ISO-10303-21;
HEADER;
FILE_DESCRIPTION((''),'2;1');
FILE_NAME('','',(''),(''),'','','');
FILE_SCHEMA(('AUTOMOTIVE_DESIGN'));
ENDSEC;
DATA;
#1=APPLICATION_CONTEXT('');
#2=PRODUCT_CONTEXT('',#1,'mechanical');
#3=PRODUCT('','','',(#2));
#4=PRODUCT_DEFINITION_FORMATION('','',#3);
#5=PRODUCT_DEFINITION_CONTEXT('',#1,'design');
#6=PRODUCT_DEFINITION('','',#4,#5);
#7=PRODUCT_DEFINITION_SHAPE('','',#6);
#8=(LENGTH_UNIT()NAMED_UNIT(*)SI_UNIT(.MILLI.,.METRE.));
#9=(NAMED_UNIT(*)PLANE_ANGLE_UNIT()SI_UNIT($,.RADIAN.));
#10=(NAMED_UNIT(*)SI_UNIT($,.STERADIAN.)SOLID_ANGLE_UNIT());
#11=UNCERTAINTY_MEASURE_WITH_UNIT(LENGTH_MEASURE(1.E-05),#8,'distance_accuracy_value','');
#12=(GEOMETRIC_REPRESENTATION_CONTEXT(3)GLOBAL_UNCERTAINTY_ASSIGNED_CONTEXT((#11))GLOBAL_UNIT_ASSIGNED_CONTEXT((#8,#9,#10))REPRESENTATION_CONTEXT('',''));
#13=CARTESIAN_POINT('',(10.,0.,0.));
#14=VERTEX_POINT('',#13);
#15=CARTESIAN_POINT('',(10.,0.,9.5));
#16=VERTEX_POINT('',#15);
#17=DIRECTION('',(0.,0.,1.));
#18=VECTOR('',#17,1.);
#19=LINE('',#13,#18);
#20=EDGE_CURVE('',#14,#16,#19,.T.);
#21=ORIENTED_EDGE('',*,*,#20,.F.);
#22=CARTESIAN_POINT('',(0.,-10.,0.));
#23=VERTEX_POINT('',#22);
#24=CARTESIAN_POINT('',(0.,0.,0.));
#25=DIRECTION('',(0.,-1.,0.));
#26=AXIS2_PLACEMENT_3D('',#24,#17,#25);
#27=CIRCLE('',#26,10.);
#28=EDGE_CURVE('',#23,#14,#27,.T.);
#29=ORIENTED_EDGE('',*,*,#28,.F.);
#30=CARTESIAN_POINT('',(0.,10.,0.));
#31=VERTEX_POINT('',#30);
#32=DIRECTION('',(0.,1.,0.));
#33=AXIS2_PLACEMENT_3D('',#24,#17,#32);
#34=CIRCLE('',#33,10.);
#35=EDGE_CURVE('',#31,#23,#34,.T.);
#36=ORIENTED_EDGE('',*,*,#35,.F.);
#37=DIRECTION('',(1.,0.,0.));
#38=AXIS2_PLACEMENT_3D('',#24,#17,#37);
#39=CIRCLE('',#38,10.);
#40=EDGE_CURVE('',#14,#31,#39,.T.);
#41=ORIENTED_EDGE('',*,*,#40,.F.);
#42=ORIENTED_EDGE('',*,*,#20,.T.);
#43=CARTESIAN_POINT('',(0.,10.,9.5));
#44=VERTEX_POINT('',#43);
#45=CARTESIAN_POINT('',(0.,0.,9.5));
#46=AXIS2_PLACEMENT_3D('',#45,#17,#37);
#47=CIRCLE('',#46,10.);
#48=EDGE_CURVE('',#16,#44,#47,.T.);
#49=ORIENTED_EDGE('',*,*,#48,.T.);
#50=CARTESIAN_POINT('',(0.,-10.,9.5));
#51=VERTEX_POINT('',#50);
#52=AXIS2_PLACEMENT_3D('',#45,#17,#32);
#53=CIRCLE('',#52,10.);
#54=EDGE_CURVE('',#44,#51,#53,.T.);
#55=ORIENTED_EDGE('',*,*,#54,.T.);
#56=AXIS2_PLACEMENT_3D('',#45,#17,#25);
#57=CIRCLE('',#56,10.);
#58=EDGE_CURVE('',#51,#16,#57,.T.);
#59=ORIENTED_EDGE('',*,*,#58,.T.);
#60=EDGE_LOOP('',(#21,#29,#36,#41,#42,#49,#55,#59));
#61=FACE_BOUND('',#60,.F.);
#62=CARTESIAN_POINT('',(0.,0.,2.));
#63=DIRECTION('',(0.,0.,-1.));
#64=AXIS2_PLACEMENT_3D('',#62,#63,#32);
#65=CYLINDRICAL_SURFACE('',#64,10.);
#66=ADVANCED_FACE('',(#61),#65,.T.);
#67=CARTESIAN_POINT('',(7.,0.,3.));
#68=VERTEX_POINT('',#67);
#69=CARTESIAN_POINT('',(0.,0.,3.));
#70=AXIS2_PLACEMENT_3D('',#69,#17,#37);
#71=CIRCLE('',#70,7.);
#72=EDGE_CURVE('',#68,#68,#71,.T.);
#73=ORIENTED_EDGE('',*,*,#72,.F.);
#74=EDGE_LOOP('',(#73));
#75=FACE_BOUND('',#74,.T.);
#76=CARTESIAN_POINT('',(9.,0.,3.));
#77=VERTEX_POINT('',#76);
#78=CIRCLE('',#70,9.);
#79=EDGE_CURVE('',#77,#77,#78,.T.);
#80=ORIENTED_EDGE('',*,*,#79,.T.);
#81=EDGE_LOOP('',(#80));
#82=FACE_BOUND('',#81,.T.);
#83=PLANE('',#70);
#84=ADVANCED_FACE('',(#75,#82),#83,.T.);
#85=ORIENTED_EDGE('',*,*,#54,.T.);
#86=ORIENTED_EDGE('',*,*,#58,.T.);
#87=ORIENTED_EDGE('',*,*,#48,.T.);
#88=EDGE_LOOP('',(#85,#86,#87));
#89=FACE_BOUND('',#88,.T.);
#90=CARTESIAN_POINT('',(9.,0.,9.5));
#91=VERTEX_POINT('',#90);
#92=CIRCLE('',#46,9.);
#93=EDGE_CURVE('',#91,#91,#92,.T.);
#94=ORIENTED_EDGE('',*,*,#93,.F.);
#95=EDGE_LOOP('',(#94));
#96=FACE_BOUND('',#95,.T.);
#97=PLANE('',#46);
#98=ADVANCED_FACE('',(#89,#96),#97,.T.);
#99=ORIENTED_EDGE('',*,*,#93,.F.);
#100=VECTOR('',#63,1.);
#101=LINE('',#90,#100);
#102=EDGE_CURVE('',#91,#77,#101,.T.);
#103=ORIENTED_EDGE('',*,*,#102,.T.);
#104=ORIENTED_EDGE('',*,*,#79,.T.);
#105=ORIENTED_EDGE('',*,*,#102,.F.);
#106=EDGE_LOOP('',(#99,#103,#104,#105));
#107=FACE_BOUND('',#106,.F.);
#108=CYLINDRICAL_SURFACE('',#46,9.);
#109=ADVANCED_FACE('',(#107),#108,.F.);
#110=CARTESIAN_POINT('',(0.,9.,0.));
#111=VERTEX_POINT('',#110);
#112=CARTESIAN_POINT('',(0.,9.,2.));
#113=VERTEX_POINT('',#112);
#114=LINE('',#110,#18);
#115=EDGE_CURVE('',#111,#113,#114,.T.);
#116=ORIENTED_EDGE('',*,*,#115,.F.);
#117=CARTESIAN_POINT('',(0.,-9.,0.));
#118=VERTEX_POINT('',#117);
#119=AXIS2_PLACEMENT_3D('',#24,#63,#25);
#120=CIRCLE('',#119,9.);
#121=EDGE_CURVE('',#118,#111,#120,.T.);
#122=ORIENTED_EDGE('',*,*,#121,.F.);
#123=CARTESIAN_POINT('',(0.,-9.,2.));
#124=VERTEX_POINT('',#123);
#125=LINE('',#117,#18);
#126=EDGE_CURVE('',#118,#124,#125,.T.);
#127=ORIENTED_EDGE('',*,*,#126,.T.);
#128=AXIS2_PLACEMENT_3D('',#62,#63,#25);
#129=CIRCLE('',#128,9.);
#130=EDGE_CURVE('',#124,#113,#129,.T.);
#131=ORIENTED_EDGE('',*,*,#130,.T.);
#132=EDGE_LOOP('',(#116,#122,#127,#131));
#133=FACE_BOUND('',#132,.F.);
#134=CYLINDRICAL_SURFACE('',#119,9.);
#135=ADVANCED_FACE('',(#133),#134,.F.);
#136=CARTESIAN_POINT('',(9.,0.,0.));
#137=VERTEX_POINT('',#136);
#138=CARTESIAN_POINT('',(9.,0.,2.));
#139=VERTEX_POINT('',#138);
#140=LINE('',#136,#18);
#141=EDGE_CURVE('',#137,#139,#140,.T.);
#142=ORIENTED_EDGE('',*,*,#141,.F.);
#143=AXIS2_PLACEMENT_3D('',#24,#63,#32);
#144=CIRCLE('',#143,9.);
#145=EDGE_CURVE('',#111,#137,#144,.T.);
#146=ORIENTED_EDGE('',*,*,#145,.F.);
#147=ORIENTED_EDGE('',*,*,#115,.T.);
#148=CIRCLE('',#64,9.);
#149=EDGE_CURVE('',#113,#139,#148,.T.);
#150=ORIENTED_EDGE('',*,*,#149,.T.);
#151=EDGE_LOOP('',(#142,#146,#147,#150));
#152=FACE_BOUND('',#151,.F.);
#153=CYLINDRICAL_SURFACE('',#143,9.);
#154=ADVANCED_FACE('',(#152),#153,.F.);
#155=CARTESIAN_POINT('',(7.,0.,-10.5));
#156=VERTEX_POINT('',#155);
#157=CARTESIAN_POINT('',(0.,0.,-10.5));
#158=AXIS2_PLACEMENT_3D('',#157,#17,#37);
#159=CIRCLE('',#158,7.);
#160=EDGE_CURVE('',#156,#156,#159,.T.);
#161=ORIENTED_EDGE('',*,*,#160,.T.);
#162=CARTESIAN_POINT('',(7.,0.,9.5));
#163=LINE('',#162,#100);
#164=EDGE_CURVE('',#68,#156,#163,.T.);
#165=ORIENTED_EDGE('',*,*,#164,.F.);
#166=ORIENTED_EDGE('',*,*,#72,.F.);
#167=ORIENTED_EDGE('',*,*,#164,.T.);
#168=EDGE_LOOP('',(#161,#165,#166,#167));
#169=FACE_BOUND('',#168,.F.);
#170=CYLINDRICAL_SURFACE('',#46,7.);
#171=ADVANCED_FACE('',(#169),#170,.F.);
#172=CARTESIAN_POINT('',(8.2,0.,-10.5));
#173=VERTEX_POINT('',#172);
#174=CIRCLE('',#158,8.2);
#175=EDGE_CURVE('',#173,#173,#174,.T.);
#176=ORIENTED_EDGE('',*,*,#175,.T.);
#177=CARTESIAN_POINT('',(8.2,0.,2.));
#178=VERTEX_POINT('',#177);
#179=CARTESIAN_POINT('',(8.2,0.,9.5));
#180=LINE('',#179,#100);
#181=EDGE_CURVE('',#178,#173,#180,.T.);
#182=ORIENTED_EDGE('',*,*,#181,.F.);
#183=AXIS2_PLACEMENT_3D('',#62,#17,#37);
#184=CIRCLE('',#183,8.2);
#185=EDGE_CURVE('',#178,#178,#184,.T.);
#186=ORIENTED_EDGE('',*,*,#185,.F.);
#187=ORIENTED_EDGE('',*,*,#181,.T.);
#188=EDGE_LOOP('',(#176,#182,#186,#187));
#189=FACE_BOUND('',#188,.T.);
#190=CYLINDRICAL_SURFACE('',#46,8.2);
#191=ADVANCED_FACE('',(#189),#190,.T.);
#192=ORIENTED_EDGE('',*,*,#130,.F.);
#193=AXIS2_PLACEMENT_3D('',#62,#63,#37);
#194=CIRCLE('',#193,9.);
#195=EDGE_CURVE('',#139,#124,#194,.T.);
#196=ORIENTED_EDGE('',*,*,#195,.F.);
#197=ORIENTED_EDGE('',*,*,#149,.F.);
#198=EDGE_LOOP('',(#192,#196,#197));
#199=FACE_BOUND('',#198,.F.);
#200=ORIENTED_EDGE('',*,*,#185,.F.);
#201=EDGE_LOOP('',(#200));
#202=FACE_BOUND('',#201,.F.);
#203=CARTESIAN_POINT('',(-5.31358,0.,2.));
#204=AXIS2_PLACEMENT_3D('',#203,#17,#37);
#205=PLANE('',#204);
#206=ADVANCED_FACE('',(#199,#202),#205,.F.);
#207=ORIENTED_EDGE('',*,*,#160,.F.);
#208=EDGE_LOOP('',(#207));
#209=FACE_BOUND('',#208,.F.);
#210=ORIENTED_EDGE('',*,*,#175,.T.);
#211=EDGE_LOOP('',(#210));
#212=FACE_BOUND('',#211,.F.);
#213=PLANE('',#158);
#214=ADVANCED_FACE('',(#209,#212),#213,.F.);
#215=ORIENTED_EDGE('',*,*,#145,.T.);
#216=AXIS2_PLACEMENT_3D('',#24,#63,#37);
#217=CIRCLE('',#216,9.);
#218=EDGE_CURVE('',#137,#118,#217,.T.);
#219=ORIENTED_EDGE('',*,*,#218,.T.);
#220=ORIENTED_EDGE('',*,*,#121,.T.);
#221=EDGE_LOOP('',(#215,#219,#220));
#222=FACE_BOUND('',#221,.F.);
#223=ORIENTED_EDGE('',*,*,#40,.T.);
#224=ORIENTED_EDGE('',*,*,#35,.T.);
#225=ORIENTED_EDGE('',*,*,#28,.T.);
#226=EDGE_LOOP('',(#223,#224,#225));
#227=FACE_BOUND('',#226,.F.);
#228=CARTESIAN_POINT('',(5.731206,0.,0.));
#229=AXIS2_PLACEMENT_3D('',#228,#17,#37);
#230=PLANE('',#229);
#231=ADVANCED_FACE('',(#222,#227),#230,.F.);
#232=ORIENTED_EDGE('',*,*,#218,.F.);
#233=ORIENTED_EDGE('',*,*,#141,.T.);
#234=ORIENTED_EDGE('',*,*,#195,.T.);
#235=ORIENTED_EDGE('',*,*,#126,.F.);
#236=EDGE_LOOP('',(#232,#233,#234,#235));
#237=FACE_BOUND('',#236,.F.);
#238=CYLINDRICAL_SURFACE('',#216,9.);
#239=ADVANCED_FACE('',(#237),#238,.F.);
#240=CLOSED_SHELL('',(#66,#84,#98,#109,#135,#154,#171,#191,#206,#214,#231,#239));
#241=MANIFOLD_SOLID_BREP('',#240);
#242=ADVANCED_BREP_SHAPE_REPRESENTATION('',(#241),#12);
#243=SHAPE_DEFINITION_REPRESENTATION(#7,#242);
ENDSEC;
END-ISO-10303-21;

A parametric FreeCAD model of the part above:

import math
import FreeCAD as App
import Part
import Sketcher
Q = App.Units.Quantity

doc = App.newDocument("Part")
body = doc.addObject("PartDesign::Body", "Body")

# Sketch on XY plane
sketch1 = body.newObject("Sketcher::SketchObject", "Sketch")
sketch1.AttachmentSupport = (doc.getObject("XY_Plane"), [""])
sketch1.MapMode = "FlatFace"
sketch1.addGeometry([
    Part.LineSegment(App.Vector(0, 9, 0), App.Vector(0, 10, 0)),
    Part.ArcOfCircle(Part.Circle(App.Vector(0, 0, 0), App.Vector(0, 0, 1), 10), math.radians(90), math.radians(270)),
    Part.LineSegment(App.Vector(0, -10, 0), App.Vector(0, -9, 0)),
    Part.ArcOfCircle(Part.Circle(App.Vector(0, 0, 0), App.Vector(0, 0, 1), 9), math.radians(90), math.radians(270)),
], False)
sketch1.addConstraint([
    Sketcher.Constraint("Coincident", 0, 2, 1, 1),
    Sketcher.Constraint("Coincident", 1, 2, 2, 1),
    Sketcher.Constraint("Coincident", 2, 2, 3, 2),
    Sketcher.Constraint("Coincident", 3, 1, 0, 1),
    Sketcher.Constraint("Vertical", 0),
    Sketcher.Constraint("Vertical", 2),
    Sketcher.Constraint("Coincident", 1, 3, -1, 1),
    Sketcher.Constraint("Coincident", 3, 3, -1, 1),
    Sketcher.Constraint("PointOnObject", 0, 2, -2),
    Sketcher.Constraint("PointOnObject", 1, 2, -2),
    Sketcher.Constraint("Radius", 1, Q("10 mm")),
    Sketcher.Constraint("Radius", 3, Q("9 mm")),
])
pad1 = body.newObject("PartDesign::Pad", "Pad")
pad1.Profile = sketch1
pad1.Length = 2

# Sketch on XY plane
sketch2 = body.newObject("Sketcher::SketchObject", "Sketch001")
sketch2.AttachmentSupport = (doc.getObject("XY_Plane"), [""])
sketch2.MapMode = "FlatFace"
sketch2.addGeometry([
    Part.ArcOfCircle(Part.Circle(App.Vector(0, 0, 0), App.Vector(0, 0, 1), 10), math.radians(-90), math.radians(0)),  # 0
    Part.ArcOfCircle(Part.Circle(App.Vector(0, 0, 0), App.Vector(0, 0, 1), 10), math.radians(0), math.radians(90)),  # 1
    Part.LineSegment(App.Vector(0, 10, 0), App.Vector(0, 9, 0)),  # 2
    Part.ArcOfCircle(Part.Circle(App.Vector(0, 0, 0), App.Vector(0, 0, 1), 9), math.radians(0), math.radians(90)),  # 3
    Part.ArcOfCircle(Part.Circle(App.Vector(0, 0, 0), App.Vector(0, 0, 1), 9), math.radians(-90), math.radians(0)),  # 4
    Part.LineSegment(App.Vector(0, -9, 0), App.Vector(0, -10, 0)),  # 5
], False)
sketch2.addConstraint([
    Sketcher.Constraint("Tangent", 0, 2, 1, 1),
    Sketcher.Constraint("Coincident", 1, 2, 2, 1),
    Sketcher.Constraint("Coincident", 2, 2, 3, 2),
    Sketcher.Constraint("Tangent", 3, 1, 4, 2),
    Sketcher.Constraint("Coincident", 4, 1, 5, 1),
    Sketcher.Constraint("Coincident", 5, 2, 0, 1),
    Sketcher.Constraint("Vertical", 2),
    Sketcher.Constraint("Vertical", 5),
    Sketcher.Constraint("Coincident", 0, 3, -1, 1),
    Sketcher.Constraint("Coincident", 3, 3, -1, 1),
    Sketcher.Constraint("Equal", 0, 1),
    Sketcher.Constraint("Equal", 3, 4),
    Sketcher.Constraint("PointOnObject", 0, 2, -1),
    Sketcher.Constraint("PointOnObject", 1, 2, -2),
    Sketcher.Constraint("PointOnObject", 3, 1, -1),
    Sketcher.Constraint("PointOnObject", 4, 1, -2),
    Sketcher.Constraint("Radius", 0, Q("10 mm")),
    Sketcher.Constraint("Radius", 3, Q("9 mm")),
])
pad2 = body.newObject("PartDesign::Pad", "Pad001")
pad2.Profile = sketch2
pad2.Length = 3

# Sketch on XY plane
sketch3 = body.newObject("Sketcher::SketchObject", "Sketch002")
sketch3.AttachmentSupport = (doc.getObject("XY_Plane"), [""])
sketch3.MapMode = "FlatFace"
sketch3.AttachmentOffset = App.Placement(App.Vector(0, 0, 2), App.Rotation())
sketch3.addGeometry([
    Part.ArcOfCircle(Part.Circle(App.Vector(0, 0, 0), App.Vector(0, 0, 1), 10), math.radians(90), math.radians(270)),
    Part.ArcOfCircle(Part.Circle(App.Vector(0, 0, 0), App.Vector(0, 0, 1), 10), math.radians(-90), math.radians(0)),
    Part.ArcOfCircle(Part.Circle(App.Vector(0, 0, 0), App.Vector(0, 0, 1), 10), math.radians(0), math.radians(90)),
    Part.Circle(App.Vector(0, 0, 0), App.Vector(0, 0, 1), 8),
], False)
sketch3.addConstraint([
    Sketcher.Constraint("Tangent", 0, 2, 1, 1),
    Sketcher.Constraint("Tangent", 1, 2, 2, 1),
    Sketcher.Constraint("Tangent", 2, 2, 0, 1),
    Sketcher.Constraint("Coincident", 0, 3, -1, 1),
    Sketcher.Constraint("Coincident", 3, 3, -1, 1),
    Sketcher.Constraint("PointOnObject", 0, 2, -2),
    Sketcher.Constraint("PointOnObject", 1, 2, -1),
    Sketcher.Constraint("PointOnObject", 2, 2, -2),
    Sketcher.Constraint("Radius", 0, Q("10 mm")),
    Sketcher.Constraint("Diameter", 3, Q("16.4 mm")),
])
pad3 = body.newObject("PartDesign::Pad", "Pad002")
pad3.Profile = sketch3
pad3.Length = 7.5

# Sketch on XY plane
sketch4 = body.newObject("Sketcher::SketchObject", "Sketch003")
sketch4.AttachmentSupport = (doc.getObject("XY_Plane"), [""])
sketch4.MapMode = "FlatFace"
sketch4.AttachmentOffset = App.Placement(App.Vector(0, 0, 9.5), App.Rotation())
sketch4.addGeometry([
    Part.Circle(App.Vector(0, 0, 0), App.Vector(0, 0, 1), 8),
    Part.Circle(App.Vector(0, 0, 0), App.Vector(0, 0, 1), 7),
], False)
sketch4.addConstraint([
    Sketcher.Constraint("Coincident", 0, 3, -1, 1),
    Sketcher.Constraint("Coincident", 1, 3, -1, 1),
    Sketcher.Constraint("Diameter", 1, Q("14 mm")),
    Sketcher.Constraint("Diameter", 0, Q("16.4 mm")),
])
pad4 = body.newObject("PartDesign::Pad", "Pad003")
pad4.Profile = sketch4
pad4.Length = 20
pad4.Reversed = True

# Sketch on XY plane
sketch5 = body.newObject("Sketcher::SketchObject", "Sketch004")
sketch5.AttachmentSupport = (doc.getObject("XY_Plane"), [""])
sketch5.MapMode = "FlatFace"
sketch5.AttachmentOffset = App.Placement(App.Vector(0, 0, 9.5), App.Rotation())
sketch5.addGeometry([
    Part.Circle(App.Vector(0, 0, 0), App.Vector(0, 0, 1), 9),
    Part.Circle(App.Vector(0, 0, 0), App.Vector(0, 0, 1), 7),
], False)
sketch5.addConstraint([
    Sketcher.Constraint("Coincident", 0, 3, -1, 1),
    Sketcher.Constraint("Coincident", 1, 3, -1, 1),
    Sketcher.Constraint("Diameter", 0, Q("18 mm")),
    Sketcher.Constraint("Diameter", 1, Q("14 mm")),
])
pocket1 = body.newObject("PartDesign::Pocket", "Pocket")
pocket1.Profile = sketch5
pocket1.Length = 6.5

doc.recompute()
